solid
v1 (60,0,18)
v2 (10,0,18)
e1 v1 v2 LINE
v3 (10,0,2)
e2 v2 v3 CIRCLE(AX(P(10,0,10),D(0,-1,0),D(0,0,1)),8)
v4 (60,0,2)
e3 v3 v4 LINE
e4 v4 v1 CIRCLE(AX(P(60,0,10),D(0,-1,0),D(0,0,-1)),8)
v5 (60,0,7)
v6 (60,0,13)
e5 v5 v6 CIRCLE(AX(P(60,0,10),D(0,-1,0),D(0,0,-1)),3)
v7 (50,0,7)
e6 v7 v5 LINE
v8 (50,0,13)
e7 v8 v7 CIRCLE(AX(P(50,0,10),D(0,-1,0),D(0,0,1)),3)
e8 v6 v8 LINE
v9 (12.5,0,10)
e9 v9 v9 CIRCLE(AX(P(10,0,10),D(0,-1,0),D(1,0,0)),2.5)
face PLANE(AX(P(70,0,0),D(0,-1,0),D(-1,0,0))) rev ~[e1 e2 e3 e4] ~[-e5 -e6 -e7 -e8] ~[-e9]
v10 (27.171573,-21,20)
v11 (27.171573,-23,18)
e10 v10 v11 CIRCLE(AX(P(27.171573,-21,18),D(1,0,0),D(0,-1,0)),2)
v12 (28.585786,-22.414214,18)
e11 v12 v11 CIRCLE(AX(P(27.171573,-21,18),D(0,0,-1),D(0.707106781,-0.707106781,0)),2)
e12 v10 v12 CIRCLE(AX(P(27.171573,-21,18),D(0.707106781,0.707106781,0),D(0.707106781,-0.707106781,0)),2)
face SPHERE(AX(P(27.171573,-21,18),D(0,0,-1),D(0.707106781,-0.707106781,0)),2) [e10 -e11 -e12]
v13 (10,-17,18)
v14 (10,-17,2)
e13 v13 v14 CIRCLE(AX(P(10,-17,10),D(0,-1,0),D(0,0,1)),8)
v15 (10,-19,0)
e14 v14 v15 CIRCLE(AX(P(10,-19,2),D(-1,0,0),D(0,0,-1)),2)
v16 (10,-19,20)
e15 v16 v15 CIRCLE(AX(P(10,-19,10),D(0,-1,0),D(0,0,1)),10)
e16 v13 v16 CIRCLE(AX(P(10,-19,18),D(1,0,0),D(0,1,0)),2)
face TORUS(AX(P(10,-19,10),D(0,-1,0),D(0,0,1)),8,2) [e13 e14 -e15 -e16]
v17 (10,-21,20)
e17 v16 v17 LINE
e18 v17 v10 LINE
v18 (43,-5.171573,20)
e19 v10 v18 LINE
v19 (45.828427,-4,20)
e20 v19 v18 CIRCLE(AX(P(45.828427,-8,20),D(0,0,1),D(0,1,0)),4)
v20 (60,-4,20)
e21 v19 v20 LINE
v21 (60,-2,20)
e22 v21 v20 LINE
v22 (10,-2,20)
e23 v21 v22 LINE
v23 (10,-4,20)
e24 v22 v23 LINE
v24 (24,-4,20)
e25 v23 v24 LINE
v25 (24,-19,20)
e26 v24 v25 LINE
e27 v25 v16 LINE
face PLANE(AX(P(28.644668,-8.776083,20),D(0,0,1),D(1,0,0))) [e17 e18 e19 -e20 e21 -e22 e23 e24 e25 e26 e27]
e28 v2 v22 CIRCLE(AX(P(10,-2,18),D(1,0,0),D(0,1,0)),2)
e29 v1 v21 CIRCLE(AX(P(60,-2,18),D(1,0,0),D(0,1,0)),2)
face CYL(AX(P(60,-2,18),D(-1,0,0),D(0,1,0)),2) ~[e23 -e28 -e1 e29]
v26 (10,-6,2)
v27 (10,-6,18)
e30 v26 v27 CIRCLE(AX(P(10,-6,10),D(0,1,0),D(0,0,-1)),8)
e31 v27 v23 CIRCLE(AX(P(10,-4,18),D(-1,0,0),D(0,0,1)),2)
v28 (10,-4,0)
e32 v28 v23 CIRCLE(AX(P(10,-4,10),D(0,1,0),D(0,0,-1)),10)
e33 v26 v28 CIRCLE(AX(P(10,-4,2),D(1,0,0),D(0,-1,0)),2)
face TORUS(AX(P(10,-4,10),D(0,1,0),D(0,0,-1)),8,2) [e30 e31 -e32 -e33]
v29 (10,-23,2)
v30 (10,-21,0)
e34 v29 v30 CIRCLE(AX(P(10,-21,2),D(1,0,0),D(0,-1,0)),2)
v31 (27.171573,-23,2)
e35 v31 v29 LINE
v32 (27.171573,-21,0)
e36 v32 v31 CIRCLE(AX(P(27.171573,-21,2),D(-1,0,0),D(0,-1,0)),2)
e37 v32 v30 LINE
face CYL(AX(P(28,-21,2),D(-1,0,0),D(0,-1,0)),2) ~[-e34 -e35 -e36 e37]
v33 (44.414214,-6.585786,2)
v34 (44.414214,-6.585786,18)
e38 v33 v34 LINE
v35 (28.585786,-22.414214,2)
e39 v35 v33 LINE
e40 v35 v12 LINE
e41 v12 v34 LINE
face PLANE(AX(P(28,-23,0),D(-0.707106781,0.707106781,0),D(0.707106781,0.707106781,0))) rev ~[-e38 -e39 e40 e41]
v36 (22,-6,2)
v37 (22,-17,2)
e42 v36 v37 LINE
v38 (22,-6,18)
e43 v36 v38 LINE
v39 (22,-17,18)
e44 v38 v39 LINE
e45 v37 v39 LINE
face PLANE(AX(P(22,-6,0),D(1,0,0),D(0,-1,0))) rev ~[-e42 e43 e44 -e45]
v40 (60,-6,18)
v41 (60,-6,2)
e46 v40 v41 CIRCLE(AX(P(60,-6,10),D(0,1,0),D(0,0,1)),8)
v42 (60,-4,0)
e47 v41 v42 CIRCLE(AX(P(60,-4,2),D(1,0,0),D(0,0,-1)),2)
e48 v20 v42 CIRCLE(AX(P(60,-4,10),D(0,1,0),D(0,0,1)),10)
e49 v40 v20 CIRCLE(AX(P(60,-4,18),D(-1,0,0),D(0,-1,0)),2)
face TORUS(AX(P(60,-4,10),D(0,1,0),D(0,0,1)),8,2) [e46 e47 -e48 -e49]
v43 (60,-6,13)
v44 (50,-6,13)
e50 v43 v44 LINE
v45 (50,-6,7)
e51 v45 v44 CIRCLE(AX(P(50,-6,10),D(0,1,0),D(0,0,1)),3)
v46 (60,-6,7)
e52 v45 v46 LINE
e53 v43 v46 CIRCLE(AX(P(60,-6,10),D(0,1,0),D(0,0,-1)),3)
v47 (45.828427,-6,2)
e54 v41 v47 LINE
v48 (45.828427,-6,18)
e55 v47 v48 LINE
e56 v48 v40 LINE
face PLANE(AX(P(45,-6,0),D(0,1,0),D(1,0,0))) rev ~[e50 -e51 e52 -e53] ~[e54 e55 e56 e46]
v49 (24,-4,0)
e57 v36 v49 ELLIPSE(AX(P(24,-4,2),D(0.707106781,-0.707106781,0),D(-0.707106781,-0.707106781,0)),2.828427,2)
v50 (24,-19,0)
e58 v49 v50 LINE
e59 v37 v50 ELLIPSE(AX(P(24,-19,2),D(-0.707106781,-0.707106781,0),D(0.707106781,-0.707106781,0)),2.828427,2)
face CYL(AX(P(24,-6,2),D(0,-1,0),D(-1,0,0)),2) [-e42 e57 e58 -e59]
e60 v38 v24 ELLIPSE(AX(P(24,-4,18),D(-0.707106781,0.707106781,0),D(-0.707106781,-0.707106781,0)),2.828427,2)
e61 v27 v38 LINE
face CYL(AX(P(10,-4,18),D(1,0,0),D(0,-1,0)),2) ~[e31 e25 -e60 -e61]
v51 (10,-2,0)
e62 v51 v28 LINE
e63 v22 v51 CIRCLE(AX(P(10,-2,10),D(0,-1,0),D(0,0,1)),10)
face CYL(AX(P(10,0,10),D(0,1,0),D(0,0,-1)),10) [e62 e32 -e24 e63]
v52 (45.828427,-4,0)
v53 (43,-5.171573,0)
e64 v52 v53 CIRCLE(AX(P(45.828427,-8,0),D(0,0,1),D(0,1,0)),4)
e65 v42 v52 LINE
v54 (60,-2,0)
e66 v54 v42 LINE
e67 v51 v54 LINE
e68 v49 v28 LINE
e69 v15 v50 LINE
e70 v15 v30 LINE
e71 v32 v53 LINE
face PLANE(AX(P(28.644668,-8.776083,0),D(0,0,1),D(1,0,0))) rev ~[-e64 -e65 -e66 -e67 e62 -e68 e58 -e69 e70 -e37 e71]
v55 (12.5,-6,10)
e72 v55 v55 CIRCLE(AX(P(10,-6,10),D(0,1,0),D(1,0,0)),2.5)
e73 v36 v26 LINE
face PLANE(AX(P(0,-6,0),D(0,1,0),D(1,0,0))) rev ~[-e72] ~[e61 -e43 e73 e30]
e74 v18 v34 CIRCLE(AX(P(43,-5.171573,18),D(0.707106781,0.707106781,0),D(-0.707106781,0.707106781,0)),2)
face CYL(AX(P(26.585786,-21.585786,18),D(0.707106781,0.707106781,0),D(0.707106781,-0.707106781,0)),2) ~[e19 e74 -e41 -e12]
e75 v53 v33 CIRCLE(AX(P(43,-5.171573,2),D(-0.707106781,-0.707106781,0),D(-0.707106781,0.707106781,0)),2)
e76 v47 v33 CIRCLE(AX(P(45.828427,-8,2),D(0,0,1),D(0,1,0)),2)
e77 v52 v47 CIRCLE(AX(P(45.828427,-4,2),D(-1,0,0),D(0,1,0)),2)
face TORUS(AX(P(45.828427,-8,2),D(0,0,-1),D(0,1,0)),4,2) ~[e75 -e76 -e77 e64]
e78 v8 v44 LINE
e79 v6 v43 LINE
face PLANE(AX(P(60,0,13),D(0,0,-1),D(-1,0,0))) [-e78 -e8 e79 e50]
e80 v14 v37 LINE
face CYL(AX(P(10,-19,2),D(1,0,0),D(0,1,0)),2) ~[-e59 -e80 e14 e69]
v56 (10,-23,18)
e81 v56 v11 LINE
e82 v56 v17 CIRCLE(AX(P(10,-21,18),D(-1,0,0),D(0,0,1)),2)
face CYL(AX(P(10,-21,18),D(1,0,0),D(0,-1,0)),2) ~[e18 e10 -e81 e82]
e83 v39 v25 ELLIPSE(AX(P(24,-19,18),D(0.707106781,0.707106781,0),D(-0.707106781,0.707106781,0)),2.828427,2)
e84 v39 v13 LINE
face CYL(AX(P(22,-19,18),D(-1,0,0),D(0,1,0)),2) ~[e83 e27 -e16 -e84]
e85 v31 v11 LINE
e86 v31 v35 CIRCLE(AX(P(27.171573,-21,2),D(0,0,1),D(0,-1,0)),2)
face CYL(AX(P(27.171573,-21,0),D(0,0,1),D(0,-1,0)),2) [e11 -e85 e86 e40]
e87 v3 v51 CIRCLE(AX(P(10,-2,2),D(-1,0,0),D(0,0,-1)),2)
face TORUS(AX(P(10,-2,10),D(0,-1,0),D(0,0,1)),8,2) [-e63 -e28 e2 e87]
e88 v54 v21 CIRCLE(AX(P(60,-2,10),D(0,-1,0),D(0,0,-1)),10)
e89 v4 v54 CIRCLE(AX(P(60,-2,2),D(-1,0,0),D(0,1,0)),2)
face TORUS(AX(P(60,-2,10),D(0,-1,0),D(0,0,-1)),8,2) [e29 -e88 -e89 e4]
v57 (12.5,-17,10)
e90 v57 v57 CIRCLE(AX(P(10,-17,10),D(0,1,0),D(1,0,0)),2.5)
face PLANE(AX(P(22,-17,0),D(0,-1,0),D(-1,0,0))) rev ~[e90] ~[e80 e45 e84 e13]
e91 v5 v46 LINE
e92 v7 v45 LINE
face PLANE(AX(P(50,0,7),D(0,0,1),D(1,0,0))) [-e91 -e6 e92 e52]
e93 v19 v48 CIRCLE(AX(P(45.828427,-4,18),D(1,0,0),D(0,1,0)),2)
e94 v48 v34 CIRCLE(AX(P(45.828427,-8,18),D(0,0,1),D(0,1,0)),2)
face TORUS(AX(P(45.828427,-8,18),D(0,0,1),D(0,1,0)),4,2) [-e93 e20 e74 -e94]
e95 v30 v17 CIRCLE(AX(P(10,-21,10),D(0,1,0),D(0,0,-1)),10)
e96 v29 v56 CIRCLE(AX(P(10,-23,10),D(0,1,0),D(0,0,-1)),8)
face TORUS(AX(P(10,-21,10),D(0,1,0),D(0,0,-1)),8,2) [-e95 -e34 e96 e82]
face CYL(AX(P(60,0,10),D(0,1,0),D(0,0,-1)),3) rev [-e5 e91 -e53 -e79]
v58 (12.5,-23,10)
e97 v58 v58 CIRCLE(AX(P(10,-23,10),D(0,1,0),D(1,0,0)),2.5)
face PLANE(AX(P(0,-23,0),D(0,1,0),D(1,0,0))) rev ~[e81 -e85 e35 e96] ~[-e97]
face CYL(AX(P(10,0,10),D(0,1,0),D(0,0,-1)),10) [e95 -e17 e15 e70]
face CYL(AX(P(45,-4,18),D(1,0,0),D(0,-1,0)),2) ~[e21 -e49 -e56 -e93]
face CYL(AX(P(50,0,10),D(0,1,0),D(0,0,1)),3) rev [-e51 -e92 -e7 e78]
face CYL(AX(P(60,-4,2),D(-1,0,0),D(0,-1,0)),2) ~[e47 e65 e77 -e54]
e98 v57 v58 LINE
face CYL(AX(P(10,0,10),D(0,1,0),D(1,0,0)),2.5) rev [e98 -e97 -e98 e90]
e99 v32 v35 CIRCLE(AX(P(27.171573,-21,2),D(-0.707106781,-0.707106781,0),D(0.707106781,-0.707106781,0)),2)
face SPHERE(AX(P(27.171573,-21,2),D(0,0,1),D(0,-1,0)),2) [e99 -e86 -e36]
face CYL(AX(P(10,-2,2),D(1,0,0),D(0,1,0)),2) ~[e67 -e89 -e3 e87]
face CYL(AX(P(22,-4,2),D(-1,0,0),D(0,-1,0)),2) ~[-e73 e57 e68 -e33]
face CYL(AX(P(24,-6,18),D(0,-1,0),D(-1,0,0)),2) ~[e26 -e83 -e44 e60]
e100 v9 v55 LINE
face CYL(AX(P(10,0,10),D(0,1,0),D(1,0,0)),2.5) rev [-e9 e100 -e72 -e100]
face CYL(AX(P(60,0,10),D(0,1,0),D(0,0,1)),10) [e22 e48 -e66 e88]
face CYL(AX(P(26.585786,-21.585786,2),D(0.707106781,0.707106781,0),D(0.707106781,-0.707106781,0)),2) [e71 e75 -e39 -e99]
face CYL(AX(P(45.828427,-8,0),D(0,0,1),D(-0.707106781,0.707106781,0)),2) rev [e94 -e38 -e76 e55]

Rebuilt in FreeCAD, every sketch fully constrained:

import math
import FreeCAD as App
import Part
import Sketcher
from FreeCAD import Vector


def edges_at(feature, points):
    """Names of the edges that pass closest to the given points."""
    edges = feature.Shape.Edges
    near = lambda p: min(range(len(edges)), key=lambda i: edges[i].distToShape(Part.Vertex(*p))[0])
    return sorted({f"Edge{near(p) + 1}" for p in points})


def add_polygon(sketch, points):
    """Adds a closed chain of lines whose ends are joined by coincident constraints."""
    first, n = sketch.GeometryCount, len(points)
    for a, b in zip(points, points[1:] + points[:1]):
        sketch.addGeometry(Part.LineSegment(App.Vector(*a, 0), App.Vector(*b, 0)), False)
    for i in range(n):
        sketch.addConstraint(Sketcher.Constraint("Coincident", first + i, 2, first + (i + 1) % n, 1))

doc = App.newDocument("Part")
body = doc.addObject("PartDesign::Body", "Body")

# Sketch on XY plane
sketch1 = body.newObject("Sketcher::SketchObject", "Sketch")
sketch1.AttachmentSupport = (doc.getObject("XY_Plane"), [""])
sketch1.MapMode = "FlatFace"
add_polygon(sketch1, [(70, 0), (0, 0), (0, -6), (22, -6), (22, -17), (0, -17), (0, -23), (28, -23), (45, -6), (70, -6)])  # lines 0-9
sketch1.addConstraint([
    Sketcher.Constraint("Horizontal", 0),
    Sketcher.Constraint("Vertical", 1),
    Sketcher.Constraint("Horizontal", 2),
    Sketcher.Constraint("Vertical", 3),
    Sketcher.Constraint("Horizontal", 4),
    Sketcher.Constraint("Vertical", 5),
    Sketcher.Constraint("Horizontal", 6),
    Sketcher.Constraint("Horizontal", 8),
    Sketcher.Constraint("Vertical", 9),
    Sketcher.Constraint("Coincident", 0, 2, -1, 1),
    Sketcher.Constraint("PointOnObject", 4, 2, -2),
    Sketcher.Constraint("Horizontal", 2, 2, 7, 2),
    Sketcher.Constraint("Equal", 1, 5),
    Sketcher.Constraint("DistanceX", 0, 2, 0, 1, 70.0),
    Sketcher.Constraint("DistanceX", 2, 1, 2, 2, 22.0),
    Sketcher.Constraint("DistanceX", 6, 1, 6, 2, 28.0),
    Sketcher.Constraint("DistanceX", 8, 1, 8, 2, 25.0),
    Sketcher.Constraint("DistanceY", 1, 2, 1, 1, 6.0),
    Sketcher.Constraint("DistanceY", 3, 2, 3, 1, 11.0),
])
pad1 = body.newObject("PartDesign::Pad", "Pad")
pad1.Profile = sketch1
pad1.Length = 20

# Sketch on XZ plane
sketch2 = body.newObject("Sketcher::SketchObject", "Sketch001")
sketch2.AttachmentSupport = (doc.getObject("XZ_Plane"), [""])
sketch2.MapMode = "FlatFace"
sketch2.addGeometry([
    Part.LineSegment(Vector(72, 20, 0), Vector(60, 20, 0)),  # 0
    Part.ArcOfCircle(Part.Circle(Vector(60, 10, 0), Vector(0, 0, 1), 10), math.radians(-90), math.radians(90)),  # 1
    Part.LineSegment(Vector(60, 0, 0), Vector(72, 0, 0)),  # 2
    Part.LineSegment(Vector(72, 0, 0), Vector(72, 20, 0)),  # 3
    Part.ArcOfCircle(Part.Circle(Vector(10, 10, 0), Vector(0, 0, 1), 10), math.radians(90), math.radians(270)),  # 4
    Part.LineSegment(Vector(10, 20, 0), Vector(-2, 20, 0)),  # 5
    Part.LineSegment(Vector(-2, 20, 0), Vector(-2, 0, 0)),  # 6
    Part.LineSegment(Vector(-2, 0, 0), Vector(10, 0, 0)),  # 7
    Part.LineSegment(Vector(50, 7, 0), Vector(60, 7, 0)),  # 8
    Part.ArcOfCircle(Part.Circle(Vector(60, 10, 0), Vector(0, 0, 1), 3), math.radians(-90), math.radians(90)),  # 9
    Part.LineSegment(Vector(60, 13, 0), Vector(50, 13, 0)),  # 10
    Part.ArcOfCircle(Part.Circle(Vector(50, 10, 0), Vector(0, 0, 1), 3), math.radians(90), math.radians(270)),  # 11
    Part.Circle(Vector(10, 10, 0), Vector(0, 0, 1), 2.5),  # 12
], False)
sketch2.addConstraint([
    Sketcher.Constraint("Tangent", 0, 2, 1, 2),
    Sketcher.Constraint("Tangent", 1, 1, 2, 1),
    Sketcher.Constraint("Coincident", 2, 2, 3, 1),
    Sketcher.Constraint("Coincident", 3, 2, 0, 1),
    Sketcher.Constraint("Tangent", 4, 1, 5, 1),
    Sketcher.Constraint("Coincident", 5, 2, 6, 1),
    Sketcher.Constraint("Coincident", 6, 2, 7, 1),
    Sketcher.Constraint("Tangent", 7, 2, 4, 2),
    Sketcher.Constraint("Tangent", 8, 2, 9, 1),
    Sketcher.Constraint("Tangent", 9, 2, 10, 1),
    Sketcher.Constraint("Tangent", 10, 2, 11, 1),
    Sketcher.Constraint("Tangent", 11, 2, 8, 1),
    Sketcher.Constraint("Horizontal", 0),
    Sketcher.Constraint("Horizontal", 2),
    Sketcher.Constraint("Vertical", 3),
    Sketcher.Constraint("Horizontal", 5),
    Sketcher.Constraint("Vertical", 6),
    Sketcher.Constraint("Horizontal", 7),
    Sketcher.Constraint("Horizontal", 8),
    Sketcher.Constraint("Horizontal", 10),
    Sketcher.Constraint("Coincident", 9, 3, 1, 3),
    Sketcher.Constraint("Coincident", 12, 3, 4, 3),
    Sketcher.Constraint("Equal", 1, 4),
    Sketcher.Constraint("PointOnObject", 1, 1, -1),
    Sketcher.Constraint("PointOnObject", 6, 2, -1),
    Sketcher.Constraint("Equal", 2, 5),
    Sketcher.Constraint("Diameter", 12, 5.0),
    Sketcher.Constraint("Radius", 1, 10.0),
    Sketcher.Constraint("Radius", 9, 3.0),
    Sketcher.Constraint("DistanceX", 0, 2, 0, 1, 12.0),
    Sketcher.Constraint("DistanceX", 8, 1, 8, 2, 10.0),
    Sketcher.Constraint("DistanceX", -1, 1, 1, 3, 60.0),
    Sketcher.Constraint("DistanceX", -1, 1, 4, 3, 10.0),
])
pocket1 = body.newObject("PartDesign::Pocket", "Pocket")
pocket1.Profile = sketch2
pocket1.Length = 25
pocket1.Reversed = True
doc.recompute()

fillet = body.newObject("PartDesign::Fillet", "Fillet")
fillet.Base = (pocket1, edges_at(pocket1, [
    (60, -3, 20),
    (52.5, -6, 20),
    (36.5, -14.5, 20),
    (19, -23, 20),
    (10, -20, 20),
    (16, -17, 20),
    (22, -11.5, 20),
    (16, -6, 20),
    (10, -3, 20),
    (35, 0, 20),
    (36.5, -14.5, 0),
    (45, -6, 10),
    (28, -23, 10),
    (22, -11.5, 0),
]))
fillet.Radius = 2

doc.recompute()
